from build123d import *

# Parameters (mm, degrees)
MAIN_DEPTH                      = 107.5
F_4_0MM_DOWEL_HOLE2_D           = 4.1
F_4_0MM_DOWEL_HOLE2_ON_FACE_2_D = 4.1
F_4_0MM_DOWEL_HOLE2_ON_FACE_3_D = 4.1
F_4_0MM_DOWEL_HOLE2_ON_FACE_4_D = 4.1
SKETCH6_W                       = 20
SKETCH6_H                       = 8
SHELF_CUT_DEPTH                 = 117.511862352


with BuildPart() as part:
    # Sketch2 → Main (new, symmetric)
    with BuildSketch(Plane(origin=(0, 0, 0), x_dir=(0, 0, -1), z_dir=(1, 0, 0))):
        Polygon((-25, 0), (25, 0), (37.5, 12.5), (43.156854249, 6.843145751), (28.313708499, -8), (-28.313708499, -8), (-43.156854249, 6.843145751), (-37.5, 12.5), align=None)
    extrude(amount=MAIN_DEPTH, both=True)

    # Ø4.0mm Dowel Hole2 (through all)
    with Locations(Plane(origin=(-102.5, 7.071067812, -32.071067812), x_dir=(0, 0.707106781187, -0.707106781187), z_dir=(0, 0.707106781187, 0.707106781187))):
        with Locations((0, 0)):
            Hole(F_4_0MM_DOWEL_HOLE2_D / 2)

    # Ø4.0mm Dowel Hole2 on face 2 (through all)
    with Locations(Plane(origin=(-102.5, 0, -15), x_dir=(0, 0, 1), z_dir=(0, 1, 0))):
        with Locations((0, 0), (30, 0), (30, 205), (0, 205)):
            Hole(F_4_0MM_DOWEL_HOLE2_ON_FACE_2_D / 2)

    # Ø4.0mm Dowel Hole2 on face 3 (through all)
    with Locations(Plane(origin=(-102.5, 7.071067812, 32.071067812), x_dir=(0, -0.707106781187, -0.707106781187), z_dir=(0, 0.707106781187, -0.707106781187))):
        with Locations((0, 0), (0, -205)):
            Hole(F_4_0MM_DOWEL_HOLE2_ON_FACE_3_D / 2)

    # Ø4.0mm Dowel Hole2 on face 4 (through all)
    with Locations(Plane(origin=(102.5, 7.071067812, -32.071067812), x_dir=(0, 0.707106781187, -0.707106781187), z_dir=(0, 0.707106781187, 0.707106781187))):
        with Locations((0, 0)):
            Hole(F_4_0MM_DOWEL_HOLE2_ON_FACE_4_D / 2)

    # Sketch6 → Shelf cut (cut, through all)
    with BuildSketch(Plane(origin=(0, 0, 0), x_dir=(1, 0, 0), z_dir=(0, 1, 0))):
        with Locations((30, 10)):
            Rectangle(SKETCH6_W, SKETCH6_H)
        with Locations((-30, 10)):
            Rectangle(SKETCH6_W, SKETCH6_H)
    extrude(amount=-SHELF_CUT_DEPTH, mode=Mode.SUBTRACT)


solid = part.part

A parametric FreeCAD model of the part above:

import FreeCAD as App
import Part
import Sketcher
from FreeCAD import Vector
Q = App.Units.Quantity

doc = App.newDocument("Part")
body = doc.addObject("PartDesign::Body", "Body")

# Sketch on YZ plane
sketch1 = doc.addObject("Sketcher::SketchObject", "Sketch")
body.addObject(sketch1)
sketch1.AttachmentSupport = (doc.YZ_Plane, [""])
sketch1.MapMode = "FlatFace"
sketch1.addGeometry([
    Part.LineSegment(Vector(0, -25, 0), Vector(0, 25, 0)),  # 0
    Part.LineSegment(Vector(0, 25, 0), Vector(12.5, 37.5, 0)),  # 1
    Part.LineSegment(Vector(12.5, 37.5, 0), Vector(6.843146, 43.156854, 0)),  # 2
    Part.LineSegment(Vector(6.843146, 43.156854, 0), Vector(-8, 28.313708, 0)),  # 3
    Part.LineSegment(Vector(-8, 28.313708, 0), Vector(-8, -28.313708, 0)),  # 4
    Part.LineSegment(Vector(-8, -28.313708, 0), Vector(6.843146, -43.156854, 0)),  # 5
    Part.LineSegment(Vector(6.843146, -43.156854, 0), Vector(12.5, -37.5, 0)),  # 6
    Part.LineSegment(Vector(12.5, -37.5, 0), Vector(0, -25, 0)),  # 7
], False)
sketch1.addConstraint([
    Sketcher.Constraint("Coincident", 0, 2, 1, 1),
    Sketcher.Constraint("Coincident", 1, 2, 2, 1),
    Sketcher.Constraint("Coincident", 2, 2, 3, 1),
    Sketcher.Constraint("Coincident", 3, 2, 4, 1),
    Sketcher.Constraint("Coincident", 4, 2, 5, 1),
    Sketcher.Constraint("Coincident", 5, 2, 6, 1),
    Sketcher.Constraint("Coincident", 6, 2, 7, 1),
    Sketcher.Constraint("Coincident", 7, 2, 0, 1),
    Sketcher.Constraint("Vertical", 0),
    Sketcher.Constraint("Vertical", 4),
    Sketcher.Constraint("Symmetric", 0, 2, 7, 2, -1, 1),
    Sketcher.Constraint("Symmetric", 2, 2, 5, 2, -1),
    Sketcher.Constraint("Symmetric", 1, 2, 6, 2, -1),
    Sketcher.Constraint("Perpendicular", 1, 2),
    Sketcher.Constraint("Perpendicular", 2, 3),
    Sketcher.Constraint("Perpendicular", 3, 5),
    Sketcher.Constraint("Perpendicular", 5, 6),
    Sketcher.Constraint("DistanceY", 0, 1, 0, 2, Q("50 mm")),
    Sketcher.Constraint("Distance", 2, Q("8 mm")),
    Sketcher.Constraint("DistanceX", 3, 2, -1, 1, Q("8 mm")),
    Sketcher.Constraint("DistanceY", 6, 2, 1, 2, Q("75 mm")),
])
pad1 = doc.addObject("PartDesign::Pad", "Pad")
body.addObject(pad1)
pad1.Profile = sketch1
pad1.Length = 215
pad1.Midplane = True

# Sketch on an angled plane
sketch2 = doc.addObject("Sketcher::SketchObject", "Sketch001")
body.addObject(sketch2)
sketch2.Placement = App.Placement(Vector(0, -12.5, -12.5), App.Rotation(Vector(0, 0.707106781, -0.707106781), Vector(-0.999999999, 0, 0), Vector(0, 0.707106781, 0.707106781), "ZXY"))
sketch2.addGeometry(Part.Circle(Vector(27.67767, 102.5, 0), Vector(0, 0, 1), 2.05), False)
sketch2.addConstraint([
    Sketcher.Constraint("Diameter", 0, Q("4.1 mm")),
    Sketcher.Constraint("DistanceY", -1, 1, 0, 3, Q("102.5 mm")),
    Sketcher.Constraint("DistanceX", -1, 1, 0, 3, Q("27.67767 mm")),
])
doc.recompute()
hole = doc.addObject("PartDesign::Hole", "Hole")
body.addObject(hole)
hole.Profile = sketch2
hole.ThreadType = "None"
hole.Diameter = 4.1
hole.DepthType = "ThroughAll"

# Sketch on XZ plane
sketch3 = doc.addObject("Sketcher::SketchObject", "Sketch002")
body.addObject(sketch3)
sketch3.AttachmentSupport = (doc.XZ_Plane, [""])
sketch3.MapMode = "FlatFace"
sketch3.addGeometry([
    Part.Circle(Vector(-102.5, -15, 0), Vector(0, 0, 1), 2.05),
    Part.Circle(Vector(-102.5, 15, 0), Vector(0, 0, 1), 2.05),
    Part.Circle(Vector(102.5, 15, 0), Vector(0, 0, 1), 2.05),
    Part.Circle(Vector(102.5, -15, 0), Vector(0, 0, 1), 2.05),
], False)
sketch3.addConstraint([
    Sketcher.Constraint("Equal", 0, 1),
    Sketcher.Constraint("Equal", 1, 2),
    Sketcher.Constraint("Equal", 2, 3),
    Sketcher.Constraint("Symmetric", 0, 3, 2, 3, -1, 1),
    Sketcher.Constraint("Symmetric", 1, 3, 3, 3, -1, 1),
    Sketcher.Constraint("Symmetric", 1, 3, 2, 3, -2),
    Sketcher.Constraint("Diameter", 0, Q("4.1 mm")),
    Sketcher.Constraint("DistanceY", 0, 3, -1, 1, Q("15 mm")),
    Sketcher.Constraint("DistanceX", 1, 3, 2, 3, Q("205 mm")),
])
doc.recompute()
hole2 = doc.addObject("PartDesign::Hole", "Hole001")
body.addObject(hole2)
hole2.Profile = sketch3
hole2.ThreadType = "None"
hole2.Diameter = 4.1
hole2.DepthType = "ThroughAll"
hole2.Reversed = True

# Sketch on an angled plane
sketch4 = doc.addObject("Sketcher::SketchObject", "Sketch003")
body.addObject(sketch4)
sketch4.Placement = App.Placement(Vector(0, -12.5, 12.5), App.Rotation(Vector(0, -0.707106781, -0.707106781), Vector(-0.999999999, 0, 0), Vector(0, 0.707106781, -0.707106781), "ZXY"))
sketch4.addGeometry([
    Part.Circle(Vector(-27.67767, 102.5, 0), Vector(0, 0, 1), 2.05),
    Part.Circle(Vector(-27.67767, -102.5, 0), Vector(0, 0, 1), 2.05),
], False)
sketch4.addConstraint([
    Sketcher.Constraint("Equal", 0, 1),
    Sketcher.Constraint("Symmetric", 0, 3, 1, 3, -1),
    Sketcher.Constraint("Diameter", 0, Q("4.1 mm")),
    Sketcher.Constraint("DistanceY", 1, 3, 0, 3, Q("205 mm")),
    Sketcher.Constraint("DistanceX", 0, 3, -1, 1, Q("27.67767 mm")),
])
doc.recompute()
hole3 = doc.addObject("PartDesign::Hole", "Hole002")
body.addObject(hole3)
hole3.Profile = sketch4
hole3.ThreadType = "None"
hole3.Diameter = 4.1
hole3.DepthType = "ThroughAll"

# Sketch on an angled plane
sketch5 = doc.addObject("Sketcher::SketchObject", "Sketch004")
body.addObject(sketch5)
sketch5.Placement = App.Placement(Vector(0, -12.5, -12.5), App.Rotation(Vector(0, 0.707106781, -0.707106781), Vector(-0.999999999, 0, 0), Vector(0, 0.707106781, 0.707106781), "ZXY"))
sketch5.addGeometry(Part.Circle(Vector(27.67767, -102.5, 0), Vector(0, 0, 1), 2.05), False)
sketch5.addConstraint([
    Sketcher.Constraint("Diameter", 0, Q("4.1 mm")),
    Sketcher.Constraint("DistanceY", 0, 3, -1, 1, Q("102.5 mm")),
    Sketcher.Constraint("DistanceX", -1, 1, 0, 3, Q("27.67767 mm")),
])
doc.recompute()
hole4 = doc.addObject("PartDesign::Hole", "Hole003")
body.addObject(hole4)
hole4.Profile = sketch5
hole4.ThreadType = "None"
hole4.Diameter = 4.1
hole4.DepthType = "ThroughAll"

# Sketch on XZ plane
sketch6 = doc.addObject("Sketcher::SketchObject", "Sketch005")
body.addObject(sketch6)
sketch6.AttachmentSupport = (doc.XZ_Plane, [""])
sketch6.MapMode = "FlatFace"
sketch6.addGeometry([
    Part.LineSegment(Vector(20, -14, 0), Vector(20, -6, 0)),  # 0
    Part.LineSegment(Vector(20, -6, 0), Vector(40, -6, 0)),  # 1
    Part.LineSegment(Vector(40, -6, 0), Vector(40, -14, 0)),  # 2
    Part.LineSegment(Vector(40, -14, 0), Vector(20, -14, 0)),  # 3
    Part.LineSegment(Vector(-40, -14, 0), Vector(-40, -6, 0)),  # 4
    Part.LineSegment(Vector(-40, -6, 0), Vector(-20, -6, 0)),  # 5
    Part.LineSegment(Vector(-20, -6, 0), Vector(-20, -14, 0)),  # 6
    Part.LineSegment(Vector(-20, -14, 0), Vector(-40, -14, 0)),  # 7
], False)
sketch6.addConstraint([
    Sketcher.Constraint("Coincident", 0, 2, 1, 1),
    Sketcher.Constraint("Coincident", 1, 2, 2, 1),
    Sketcher.Constraint("Coincident", 2, 2, 3, 1),
    Sketcher.Constraint("Coincident", 3, 2, 0, 1),
    Sketcher.Constraint("Coincident", 4, 2, 5, 1),
    Sketcher.Constraint("Coincident", 5, 2, 6, 1),
    Sketcher.Constraint("Coincident", 6, 2, 7, 1),
    Sketcher.Constraint("Coincident", 7, 2, 4, 1),
    Sketcher.Constraint("Vertical", 0),
    Sketcher.Constraint("Horizontal", 1),
    Sketcher.Constraint("Vertical", 2),
    Sketcher.Constraint("Horizontal", 3),
    Sketcher.Constraint("Vertical", 4),
    Sketcher.Constraint("Horizontal", 5),
    Sketcher.Constraint("Vertical", 6),
    Sketcher.Constraint("Horizontal", 7),
    Sketcher.Constraint("Symmetric", 1, 2, 4, 2, -2),
    Sketcher.Constraint("Symmetric", 3, 2, 6, 2, -2),
    Sketcher.Constraint("DistanceX", 1, 1, 1, 2, Q("20 mm")),
    Sketcher.Constraint("DistanceY", 0, 1, 0, 2, Q("8 mm")),
    Sketcher.Constraint("DistanceX", -1, 1, 0, 2, Q("20 mm")),
    Sketcher.Constraint("DistanceY", 0, 2, -1, 1, Q("6 mm")),
])
pocket1 = doc.addObject("PartDesign::Pocket", "Pocket")
body.addObject(pocket1)
pocket1.Profile = sketch6
pocket1.Type = "ThroughAll"
pocket1.Reversed = True

doc.recompute()
